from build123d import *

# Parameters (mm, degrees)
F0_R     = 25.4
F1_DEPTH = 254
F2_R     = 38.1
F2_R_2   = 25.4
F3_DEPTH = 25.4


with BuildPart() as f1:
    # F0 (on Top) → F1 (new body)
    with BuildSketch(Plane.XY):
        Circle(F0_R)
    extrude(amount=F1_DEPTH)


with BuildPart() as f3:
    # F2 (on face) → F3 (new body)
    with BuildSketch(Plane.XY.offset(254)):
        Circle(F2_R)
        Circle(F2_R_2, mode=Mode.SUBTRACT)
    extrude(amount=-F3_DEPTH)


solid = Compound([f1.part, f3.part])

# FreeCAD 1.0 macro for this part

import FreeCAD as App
import Part
import Sketcher
from FreeCAD import Vector
Q = App.Units.Quantity

doc = App.newDocument("Part")
body = doc.addObject("PartDesign::Body", "Body")

sketch1 = body.newObject("Sketcher::SketchObject", "Sketch")
sketch1.AttachmentSupport = (doc.getObject("XY_Plane"), [""])
sketch1.MapMode = "FlatFace"
sketch1.addGeometry(Part.Circle(Vector(0, 0, 0), Vector(0, 0, 1), 25), False)
sketch1.addConstraint(Sketcher.Constraint("Coincident", 0, 3, -1, 1))
sketch1.addConstraint(Sketcher.Constraint("Diameter", 0, Q("2 in")))
pad1 = body.newObject("PartDesign::Pad", "Pad")
pad1.Profile = sketch1
pad1.Length = Q("10 in")
body2 = doc.addObject("PartDesign::Body", "Body001")

sketch2 = body2.newObject("Sketcher::SketchObject", "Sketch001")
sketch2.AttachmentSupport = (doc.getObject("XY_Plane001"), [""])
sketch2.MapMode = "FlatFace"
sketch2.AttachmentOffset = App.Placement(Vector(0, 0, 10 * 25.4), App.Rotation())
sketch2.addGeometry(Part.Circle(Vector(0, 0, 0), Vector(0, 0, 1), 38), False)
sketch2.addGeometry(Part.Circle(Vector(0, 0, 0), Vector(0, 0, 1), 25), False)
sketch2.addConstraint(Sketcher.Constraint("Coincident", 0, 3, -1, 1))
sketch2.addConstraint(Sketcher.Constraint("Coincident", 1, 3, -1, 1))
sketch2.addConstraint(Sketcher.Constraint("Diameter", 0, Q("3 in")))
sketch2.addConstraint(Sketcher.Constraint("Diameter", 1, Q("2 in")))
pad2 = body2.newObject("PartDesign::Pad", "Pad001")
pad2.Profile = sketch2
pad2.Length = Q("1 in")
pad2.Reversed = True

doc.recompute()
